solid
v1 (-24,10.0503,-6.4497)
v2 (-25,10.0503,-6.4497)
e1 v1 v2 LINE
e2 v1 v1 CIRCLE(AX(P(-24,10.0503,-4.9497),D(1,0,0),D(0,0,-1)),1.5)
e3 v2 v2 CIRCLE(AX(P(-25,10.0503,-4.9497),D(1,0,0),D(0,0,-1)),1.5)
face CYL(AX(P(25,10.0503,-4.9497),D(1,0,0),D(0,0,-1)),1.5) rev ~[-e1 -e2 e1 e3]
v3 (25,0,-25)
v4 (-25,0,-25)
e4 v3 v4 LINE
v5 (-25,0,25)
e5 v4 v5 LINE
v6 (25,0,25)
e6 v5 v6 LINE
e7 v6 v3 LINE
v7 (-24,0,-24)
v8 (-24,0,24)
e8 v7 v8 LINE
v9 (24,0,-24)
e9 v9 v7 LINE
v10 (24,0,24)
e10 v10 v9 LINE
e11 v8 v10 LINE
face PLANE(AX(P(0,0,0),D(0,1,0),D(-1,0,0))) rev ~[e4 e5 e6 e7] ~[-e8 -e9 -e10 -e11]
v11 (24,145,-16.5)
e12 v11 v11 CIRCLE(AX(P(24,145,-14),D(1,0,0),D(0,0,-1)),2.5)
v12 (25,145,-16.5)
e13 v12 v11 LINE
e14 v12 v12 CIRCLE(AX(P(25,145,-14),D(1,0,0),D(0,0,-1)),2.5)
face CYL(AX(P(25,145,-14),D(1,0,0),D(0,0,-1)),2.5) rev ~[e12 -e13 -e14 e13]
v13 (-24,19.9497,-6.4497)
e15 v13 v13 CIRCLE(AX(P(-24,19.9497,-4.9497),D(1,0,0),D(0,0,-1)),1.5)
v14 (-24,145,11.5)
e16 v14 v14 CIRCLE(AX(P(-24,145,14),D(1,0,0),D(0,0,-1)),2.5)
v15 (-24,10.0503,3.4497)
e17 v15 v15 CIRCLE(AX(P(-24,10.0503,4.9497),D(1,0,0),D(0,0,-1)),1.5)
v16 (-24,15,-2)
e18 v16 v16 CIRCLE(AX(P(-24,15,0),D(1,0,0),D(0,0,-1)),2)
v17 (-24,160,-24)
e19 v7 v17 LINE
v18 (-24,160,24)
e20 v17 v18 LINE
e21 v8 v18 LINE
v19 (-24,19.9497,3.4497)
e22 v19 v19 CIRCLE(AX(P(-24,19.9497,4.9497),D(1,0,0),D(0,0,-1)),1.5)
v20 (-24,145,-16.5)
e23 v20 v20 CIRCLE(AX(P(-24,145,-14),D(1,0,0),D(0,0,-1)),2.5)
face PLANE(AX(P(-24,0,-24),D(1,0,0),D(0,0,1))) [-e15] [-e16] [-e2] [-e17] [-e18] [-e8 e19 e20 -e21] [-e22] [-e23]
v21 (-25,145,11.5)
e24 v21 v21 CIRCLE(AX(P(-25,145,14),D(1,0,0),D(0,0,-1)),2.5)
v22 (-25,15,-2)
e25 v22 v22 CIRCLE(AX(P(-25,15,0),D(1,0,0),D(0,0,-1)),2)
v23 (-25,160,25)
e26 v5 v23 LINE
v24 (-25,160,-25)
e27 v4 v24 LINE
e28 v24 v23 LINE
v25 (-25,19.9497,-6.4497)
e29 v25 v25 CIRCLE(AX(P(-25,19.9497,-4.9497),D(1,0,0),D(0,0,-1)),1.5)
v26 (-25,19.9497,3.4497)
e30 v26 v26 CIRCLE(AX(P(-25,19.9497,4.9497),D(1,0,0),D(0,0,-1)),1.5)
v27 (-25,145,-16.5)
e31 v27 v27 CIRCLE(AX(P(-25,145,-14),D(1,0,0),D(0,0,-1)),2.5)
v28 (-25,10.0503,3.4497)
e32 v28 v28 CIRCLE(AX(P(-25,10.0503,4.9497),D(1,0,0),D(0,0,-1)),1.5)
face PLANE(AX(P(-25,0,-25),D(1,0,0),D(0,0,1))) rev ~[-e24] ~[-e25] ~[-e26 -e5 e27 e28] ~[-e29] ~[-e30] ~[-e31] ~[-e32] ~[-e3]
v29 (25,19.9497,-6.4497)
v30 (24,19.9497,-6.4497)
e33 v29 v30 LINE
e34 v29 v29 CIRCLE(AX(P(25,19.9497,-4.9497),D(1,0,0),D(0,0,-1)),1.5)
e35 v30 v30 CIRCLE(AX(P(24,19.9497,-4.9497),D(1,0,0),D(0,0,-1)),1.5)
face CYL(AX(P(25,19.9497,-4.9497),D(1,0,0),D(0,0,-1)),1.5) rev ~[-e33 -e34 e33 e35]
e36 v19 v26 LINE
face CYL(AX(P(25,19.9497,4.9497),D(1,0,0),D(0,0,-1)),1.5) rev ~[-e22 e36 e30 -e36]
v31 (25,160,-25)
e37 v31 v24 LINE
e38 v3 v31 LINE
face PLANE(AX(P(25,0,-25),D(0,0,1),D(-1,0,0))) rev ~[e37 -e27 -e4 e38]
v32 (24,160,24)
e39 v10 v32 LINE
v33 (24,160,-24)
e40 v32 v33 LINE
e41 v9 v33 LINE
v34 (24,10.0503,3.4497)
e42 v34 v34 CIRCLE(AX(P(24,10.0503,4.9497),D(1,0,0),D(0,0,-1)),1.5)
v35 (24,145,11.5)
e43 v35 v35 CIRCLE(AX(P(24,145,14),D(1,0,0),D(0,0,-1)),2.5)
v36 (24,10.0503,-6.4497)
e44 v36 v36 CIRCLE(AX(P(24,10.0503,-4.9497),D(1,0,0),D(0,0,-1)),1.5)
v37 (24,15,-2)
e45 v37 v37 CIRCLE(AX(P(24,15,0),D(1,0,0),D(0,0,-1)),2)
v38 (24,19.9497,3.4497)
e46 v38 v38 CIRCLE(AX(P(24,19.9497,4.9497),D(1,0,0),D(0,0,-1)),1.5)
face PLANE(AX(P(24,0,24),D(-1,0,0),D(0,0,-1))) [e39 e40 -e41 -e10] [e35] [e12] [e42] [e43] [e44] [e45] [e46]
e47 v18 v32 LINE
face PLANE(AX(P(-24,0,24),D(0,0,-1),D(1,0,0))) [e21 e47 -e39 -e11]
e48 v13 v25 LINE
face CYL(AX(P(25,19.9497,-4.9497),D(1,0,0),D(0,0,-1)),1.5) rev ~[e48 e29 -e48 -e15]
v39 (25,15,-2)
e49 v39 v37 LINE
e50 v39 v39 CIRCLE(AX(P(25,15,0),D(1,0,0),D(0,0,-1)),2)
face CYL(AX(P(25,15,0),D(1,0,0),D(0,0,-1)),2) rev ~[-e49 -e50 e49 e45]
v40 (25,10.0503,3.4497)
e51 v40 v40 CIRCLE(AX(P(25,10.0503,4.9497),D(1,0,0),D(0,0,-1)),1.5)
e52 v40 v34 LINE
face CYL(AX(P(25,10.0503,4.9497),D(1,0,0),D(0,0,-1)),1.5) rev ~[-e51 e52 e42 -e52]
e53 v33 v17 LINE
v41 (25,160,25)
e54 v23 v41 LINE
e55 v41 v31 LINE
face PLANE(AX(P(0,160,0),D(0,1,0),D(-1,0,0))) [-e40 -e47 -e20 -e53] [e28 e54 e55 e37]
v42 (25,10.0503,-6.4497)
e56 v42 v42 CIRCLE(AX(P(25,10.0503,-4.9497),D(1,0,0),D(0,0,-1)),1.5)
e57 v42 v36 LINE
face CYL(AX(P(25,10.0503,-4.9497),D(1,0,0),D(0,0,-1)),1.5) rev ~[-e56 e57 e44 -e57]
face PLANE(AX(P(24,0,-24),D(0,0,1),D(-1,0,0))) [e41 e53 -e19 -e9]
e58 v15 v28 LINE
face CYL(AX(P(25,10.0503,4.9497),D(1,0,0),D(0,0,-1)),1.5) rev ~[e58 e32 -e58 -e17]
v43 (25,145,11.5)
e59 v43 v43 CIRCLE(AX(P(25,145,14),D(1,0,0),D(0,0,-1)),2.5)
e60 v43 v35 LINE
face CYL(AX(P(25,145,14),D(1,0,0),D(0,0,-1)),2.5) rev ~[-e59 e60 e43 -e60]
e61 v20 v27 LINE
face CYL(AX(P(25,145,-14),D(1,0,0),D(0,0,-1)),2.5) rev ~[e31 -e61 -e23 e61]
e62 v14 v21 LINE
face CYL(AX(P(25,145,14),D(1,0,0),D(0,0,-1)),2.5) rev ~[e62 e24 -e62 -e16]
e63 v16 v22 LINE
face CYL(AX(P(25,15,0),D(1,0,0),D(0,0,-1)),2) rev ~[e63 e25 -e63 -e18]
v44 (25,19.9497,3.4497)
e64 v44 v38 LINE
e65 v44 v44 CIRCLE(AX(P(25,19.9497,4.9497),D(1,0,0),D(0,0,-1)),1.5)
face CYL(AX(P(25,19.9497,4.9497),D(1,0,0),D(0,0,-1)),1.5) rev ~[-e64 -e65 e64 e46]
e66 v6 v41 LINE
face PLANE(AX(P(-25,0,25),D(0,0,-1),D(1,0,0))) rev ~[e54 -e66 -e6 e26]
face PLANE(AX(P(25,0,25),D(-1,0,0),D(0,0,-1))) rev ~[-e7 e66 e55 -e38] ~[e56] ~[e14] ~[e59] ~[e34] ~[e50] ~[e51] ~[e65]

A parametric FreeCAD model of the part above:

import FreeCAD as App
import Part
import Sketcher

doc = App.newDocument("Part")
body = doc.addObject("PartDesign::Body", "Body")

# Sketch on XZ plane
sketch1 = body.newObject("Sketcher::SketchObject", "Sketch")
sketch1.AttachmentSupport = (doc.getObject("XZ_Plane"), [""])
sketch1.MapMode = "FlatFace"
sketch1.addGeometry([
    Part.LineSegment(App.Vector(-25, -25, 0), App.Vector(-25, 25, 0)),  # 0
    Part.LineSegment(App.Vector(-25, 25, 0), App.Vector(25, 25, 0)),  # 1
    Part.LineSegment(App.Vector(25, 25, 0), App.Vector(25, -25, 0)),  # 2
    Part.LineSegment(App.Vector(25, -25, 0), App.Vector(-25, -25, 0)),  # 3
    Part.LineSegment(App.Vector(24, 24, 0), App.Vector(-24, 24, 0)),  # 4
    Part.LineSegment(App.Vector(-24, 24, 0), App.Vector(-24, -24, 0)),  # 5
    Part.LineSegment(App.Vector(-24, -24, 0), App.Vector(24, -24, 0)),  # 6
    Part.LineSegment(App.Vector(24, -24, 0), App.Vector(24, 24, 0)),  # 7
], False)
sketch1.addConstraint([
    Sketcher.Constraint("Coincident", 0, 2, 1, 1),
    Sketcher.Constraint("Coincident", 1, 2, 2, 1),
    Sketcher.Constraint("Coincident", 2, 2, 3, 1),
    Sketcher.Constraint("Coincident", 3, 2, 0, 1),
    Sketcher.Constraint("Coincident", 4, 2, 5, 1),
    Sketcher.Constraint("Coincident", 5, 2, 6, 1),
    Sketcher.Constraint("Coincident", 6, 2, 7, 1),
    Sketcher.Constraint("Coincident", 7, 2, 4, 1),
    Sketcher.Constraint("Vertical", 0),
    Sketcher.Constraint("Horizontal", 1),
    Sketcher.Constraint("Vertical", 2),
    Sketcher.Constraint("Horizontal", 3),
    Sketcher.Constraint("Horizontal", 4),
    Sketcher.Constraint("Vertical", 5),
    Sketcher.Constraint("Horizontal", 6),
    Sketcher.Constraint("Vertical", 7),
    Sketcher.Constraint("Symmetric", 0, 2, 2, 2, -1, 1),
    Sketcher.Constraint("Symmetric", 4, 2, 6, 2, -1, 1),
    Sketcher.Constraint("Equal", 3, 0),
    Sketcher.Constraint("Equal", 6, 5),
    Sketcher.Constraint("DistanceX", 1, 1, 1, 2, 50.0),
    Sketcher.Constraint("DistanceX", 4, 2, 4, 1, 48.0),
])
pad1 = body.newObject("PartDesign::Pad", "Pad")
pad1.Profile = sketch1
pad1.Length = 160
pad1.Reversed = True

# Sketch on YZ plane
sketch2 = body.newObject("Sketcher::SketchObject", "Sketch001")
sketch2.AttachmentSupport = (doc.getObject("YZ_Plane"), [""])
sketch2.MapMode = "FlatFace"
sketch2.AttachmentOffset = App.Placement(App.Vector(0, 0, 25), App.Rotation())
sketch2.addGeometry([
    Part.Circle(App.Vector(19.9, 4.9, 0), App.Vector(0, 0, 1), 1.5),  # 0
    Part.Circle(App.Vector(19.9, -4.9, 0), App.Vector(0, 0, 1), 1.5),  # 1
    Part.Circle(App.Vector(10.1, 4.9, 0), App.Vector(0, 0, 1), 1.5),  # 2
    Part.Circle(App.Vector(10.1, -4.9, 0), App.Vector(0, 0, 1), 1.5),  # 3
    Part.Circle(App.Vector(145, -14, 0), App.Vector(0, 0, 1), 2.5),  # 4
    Part.Circle(App.Vector(145, 14, 0), App.Vector(0, 0, 1), 2.5),  # 5
    Part.Circle(App.Vector(15, 0, 0), App.Vector(0, 0, 1), 2),  # 6
], False)
sketch2.addConstraint([
    Sketcher.Constraint("Equal", 0, 1),
    Sketcher.Constraint("Equal", 1, 2),
    Sketcher.Constraint("Equal", 2, 3),
    Sketcher.Constraint("Equal", 4, 5),
    Sketcher.Constraint("Symmetric", 0, 3, 1, 3, -1),
    Sketcher.Constraint("Symmetric", 2, 3, 3, 3, -1),
    Sketcher.Constraint("Symmetric", 4, 3, 5, 3, -1),
    Sketcher.Constraint("PointOnObject", 6, 3, -1),
    Sketcher.Constraint("Horizontal", 0, 3, 2, 3),
    Sketcher.Constraint("Diameter", 0, 3.0),
    Sketcher.Constraint("Diameter", 4, 5.0),
    Sketcher.Constraint("Diameter", 6, 4.0),
    Sketcher.Constraint("DistanceX", -1, 1, 6, 3, 15.0),
    Sketcher.Constraint("DistanceY", 4, 3, 5, 3, 28.0),
    Sketcher.Constraint("DistanceX", -1, 1, 4, 3, 145.0),
    Sketcher.Constraint("DistanceX", -1, 1, 0, 3, 19.9497),
    Sketcher.Constraint("DistanceY", -1, 1, 0, 3, 4.9497),
    Sketcher.Constraint("DistanceX", -1, 1, 2, 3, 10.0503),
])
pocket1 = body.newObject("PartDesign::Pocket", "Pocket")
pocket1.Profile = sketch2
pocket1.Length = 50

doc.recompute()
